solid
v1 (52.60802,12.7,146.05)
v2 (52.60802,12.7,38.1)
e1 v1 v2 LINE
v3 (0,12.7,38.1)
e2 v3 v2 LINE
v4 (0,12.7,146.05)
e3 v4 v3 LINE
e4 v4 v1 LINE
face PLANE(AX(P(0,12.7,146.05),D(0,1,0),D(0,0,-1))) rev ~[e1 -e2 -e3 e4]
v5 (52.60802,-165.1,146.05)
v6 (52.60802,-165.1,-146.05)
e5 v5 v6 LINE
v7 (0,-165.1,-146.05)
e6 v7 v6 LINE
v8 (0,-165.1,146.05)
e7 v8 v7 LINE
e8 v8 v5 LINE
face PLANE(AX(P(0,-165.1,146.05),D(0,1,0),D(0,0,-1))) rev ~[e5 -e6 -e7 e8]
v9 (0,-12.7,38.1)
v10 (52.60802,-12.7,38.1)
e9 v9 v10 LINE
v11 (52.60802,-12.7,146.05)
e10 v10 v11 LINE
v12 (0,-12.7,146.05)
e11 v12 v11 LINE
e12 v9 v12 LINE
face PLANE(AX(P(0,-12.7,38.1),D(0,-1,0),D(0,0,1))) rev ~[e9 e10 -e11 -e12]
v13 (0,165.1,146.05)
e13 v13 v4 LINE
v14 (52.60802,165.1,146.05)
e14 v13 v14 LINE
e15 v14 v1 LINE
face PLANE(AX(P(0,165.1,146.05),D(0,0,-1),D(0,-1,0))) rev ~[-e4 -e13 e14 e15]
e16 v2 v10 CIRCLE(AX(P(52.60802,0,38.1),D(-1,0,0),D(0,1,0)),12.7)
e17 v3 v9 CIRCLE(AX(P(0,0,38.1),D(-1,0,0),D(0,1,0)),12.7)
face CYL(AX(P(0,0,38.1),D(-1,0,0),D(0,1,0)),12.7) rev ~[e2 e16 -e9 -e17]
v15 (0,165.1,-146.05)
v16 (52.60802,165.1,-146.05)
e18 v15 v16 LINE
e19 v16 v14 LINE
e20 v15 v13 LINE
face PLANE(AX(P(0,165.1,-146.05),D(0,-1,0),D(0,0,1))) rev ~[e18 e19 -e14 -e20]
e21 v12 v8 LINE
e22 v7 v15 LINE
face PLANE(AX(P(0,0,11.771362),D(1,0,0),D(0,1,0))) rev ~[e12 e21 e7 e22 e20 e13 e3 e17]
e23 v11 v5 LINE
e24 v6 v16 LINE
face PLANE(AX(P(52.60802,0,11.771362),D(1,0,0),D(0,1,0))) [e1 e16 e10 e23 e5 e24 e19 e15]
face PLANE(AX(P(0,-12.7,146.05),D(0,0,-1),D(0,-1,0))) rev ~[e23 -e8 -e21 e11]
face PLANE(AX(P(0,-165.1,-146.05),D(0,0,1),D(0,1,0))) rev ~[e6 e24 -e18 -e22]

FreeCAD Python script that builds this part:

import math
import FreeCAD as App
import Part
import Sketcher
from FreeCAD import Vector
Q = App.Units.Quantity

doc = App.newDocument("Part")
params = doc.addObject("Spreadsheet::Sheet", "Params")
for row, (alias, value) in enumerate([
    ("sketch1_radius", "0.5 in"),
    ("sketch1_width", "13 in"),
    ("sketch1_height", "11.5 in"),
    ("sketch1_height2", "4.25 in"),
    ("pad1_length", "52.60802 mm"),
], start=1):
    params.set(f"A{row}", alias)
    params.set(f"B{row}", "=" + value)
    params.setAlias(f"B{row}", alias)

body = doc.addObject("PartDesign::Body", "Body")

# Sketch on YZ plane
sketch1 = body.newObject("Sketcher::SketchObject", "Sketch")
sketch1.AttachmentSupport = (doc.getObject("YZ_Plane"), [""])
sketch1.MapMode = "FlatFace"
sketch1.addGeometry(Part.LineSegment(Vector(-165, 146, 0), Vector(-165, -146, 0)), False)
sketch1.addGeometry(Part.LineSegment(Vector(-165, -146, 0), Vector(165, -146, 0)), False)
sketch1.addGeometry(Part.LineSegment(Vector(165, -146, 0), Vector(165, 146, 0)), False)
sketch1.addGeometry(Part.LineSegment(Vector(165, 146, 0), Vector(13, 146, 0)), False)
sketch1.addGeometry(Part.LineSegment(Vector(13, 146, 0), Vector(13, 38, 0)), False)
sketch1.addGeometry(Part.ArcOfCircle(Part.Circle(Vector(0, 38, 0), Vector(0, 0, 1), 13), math.radians(180), math.radians(360)), False)
sketch1.addGeometry(Part.LineSegment(Vector(-13, 38, 0), Vector(-13, 146, 0)), False)
sketch1.addGeometry(Part.LineSegment(Vector(-13, 146, 0), Vector(-165, 146, 0)), False)
sketch1.addConstraint(Sketcher.Constraint("Coincident", 0, 2, 1, 1))
sketch1.addConstraint(Sketcher.Constraint("Coincident", 1, 2, 2, 1))
sketch1.addConstraint(Sketcher.Constraint("Coincident", 2, 2, 3, 1))
sketch1.addConstraint(Sketcher.Constraint("Coincident", 3, 2, 4, 1))
sketch1.addConstraint(Sketcher.Constraint("Tangent", 4, 2, 5, 2))
sketch1.addConstraint(Sketcher.Constraint("Tangent", 5, 1, 6, 1))
sketch1.addConstraint(Sketcher.Constraint("Coincident", 6, 2, 7, 1))
sketch1.addConstraint(Sketcher.Constraint("Coincident", 7, 2, 0, 1))
sketch1.addConstraint(Sketcher.Constraint("Vertical", 0))
sketch1.addConstraint(Sketcher.Constraint("Horizontal", 1))
sketch1.addConstraint(Sketcher.Constraint("Vertical", 2))
sketch1.addConstraint(Sketcher.Constraint("Horizontal", 3))
sketch1.addConstraint(Sketcher.Constraint("Vertical", 4))
sketch1.addConstraint(Sketcher.Constraint("Vertical", 6))
sketch1.addConstraint(Sketcher.Constraint("Horizontal", 7))
sketch1.addConstraint(Sketcher.Constraint("Symmetric", 0, 2, 2, 2, -1, 1))
sketch1.addConstraint(Sketcher.Constraint("Symmetric", 3, 2, 6, 2, -2))
sketch1.addConstraint(Sketcher.Constraint("Radius", 5, Q("0.5 in")))
sketch1.addConstraint(Sketcher.Constraint("DistanceX", 1, 1, 1, 2, Q("13 in")))
sketch1.addConstraint(Sketcher.Constraint("DistanceY", 0, 2, 0, 1, Q("11.5 in")))
sketch1.addConstraint(Sketcher.Constraint("DistanceY", 4, 2, 4, 1, Q("4.25 in")))
sketch1.setExpression("Constraints[17]", "Params.sketch1_radius")
sketch1.setExpression("Constraints[18]", "Params.sketch1_width")
sketch1.setExpression("Constraints[19]", "Params.sketch1_height")
sketch1.setExpression("Constraints[20]", "Params.sketch1_height2")
pad1 = body.newObject("PartDesign::Pad", "Pad")
pad1.Profile = sketch1
pad1.setExpression("Length", "Params.pad1_length")

doc.recompute()
